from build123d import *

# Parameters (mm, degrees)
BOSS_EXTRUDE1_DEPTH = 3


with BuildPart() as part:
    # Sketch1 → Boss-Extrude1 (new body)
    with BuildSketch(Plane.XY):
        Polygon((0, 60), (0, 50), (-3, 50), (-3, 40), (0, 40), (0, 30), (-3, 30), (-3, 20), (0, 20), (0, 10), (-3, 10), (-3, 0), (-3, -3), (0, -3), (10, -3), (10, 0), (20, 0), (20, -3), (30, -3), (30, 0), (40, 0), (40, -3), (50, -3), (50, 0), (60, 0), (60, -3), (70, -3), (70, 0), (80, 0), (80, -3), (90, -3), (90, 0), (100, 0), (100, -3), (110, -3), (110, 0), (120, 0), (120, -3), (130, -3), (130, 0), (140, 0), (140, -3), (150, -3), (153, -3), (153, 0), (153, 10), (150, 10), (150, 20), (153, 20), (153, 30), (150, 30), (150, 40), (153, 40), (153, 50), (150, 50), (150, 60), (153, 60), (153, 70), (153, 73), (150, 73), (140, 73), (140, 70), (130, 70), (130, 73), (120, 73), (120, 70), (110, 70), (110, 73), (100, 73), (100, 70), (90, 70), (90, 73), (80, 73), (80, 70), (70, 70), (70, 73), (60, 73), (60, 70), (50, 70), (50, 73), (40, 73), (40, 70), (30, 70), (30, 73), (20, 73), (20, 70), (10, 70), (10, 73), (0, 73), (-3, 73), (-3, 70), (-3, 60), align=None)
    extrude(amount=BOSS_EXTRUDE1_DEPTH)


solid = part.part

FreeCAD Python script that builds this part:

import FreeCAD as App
import Part
import Sketcher

V = App.Vector
Q = App.Units.Quantity

doc = App.newDocument("Part")
body = doc.addObject("PartDesign::Body", "Body")

sketch1 = doc.addObject("Sketcher::SketchObject", "Sketch")
body.addObject(sketch1)
sketch1.AttachmentSupport = (doc.XY_Plane, [""])
sketch1.MapMode = "FlatFace"
sketch1.addGeometry(Part.LineSegment(V(0, 60, 0), V(0, 50, 0)), False)
sketch1.addGeometry(Part.LineSegment(V(0, 50, 0), V(-3, 50, 0)), False)
sketch1.addGeometry(Part.LineSegment(V(-3, 50, 0), V(-3, 40, 0)), False)
sketch1.addGeometry(Part.LineSegment(V(-3, 40, 0), V(0, 40, 0)), False)
sketch1.addGeometry(Part.LineSegment(V(0, 40, 0), V(0, 30, 0)), False)
sketch1.addGeometry(Part.LineSegment(V(0, 30, 0), V(-3, 30, 0)), False)
sketch1.addGeometry(Part.LineSegment(V(-3, 30, 0), V(-3, 20, 0)), False)
sketch1.addGeometry(Part.LineSegment(V(-3, 20, 0), V(0, 20, 0)), False)
sketch1.addGeometry(Part.LineSegment(V(0, 20, 0), V(0, 10, 0)), False)
sketch1.addGeometry(Part.LineSegment(V(0, 10, 0), V(-3, 10, 0)), False)
sketch1.addGeometry(Part.LineSegment(V(-3, 10, 0), V(-3, -3, 0)), False)
sketch1.addGeometry(Part.LineSegment(V(-3, -3, 0), V(10, -3, 0)), False)
sketch1.addGeometry(Part.LineSegment(V(10, -3, 0), V(10, 0, 0)), False)
sketch1.addGeometry(Part.LineSegment(V(10, 0, 0), V(20, 0, 0)), False)
sketch1.addGeometry(Part.LineSegment(V(20, 0, 0), V(20, -3, 0)), False)
sketch1.addGeometry(Part.LineSegment(V(20, -3, 0), V(30, -3, 0)), False)
sketch1.addGeometry(Part.LineSegment(V(30, -3, 0), V(30, 0, 0)), False)
sketch1.addGeometry(Part.LineSegment(V(30, 0, 0), V(40, 0, 0)), False)
sketch1.addGeometry(Part.LineSegment(V(40, 0, 0), V(40, -3, 0)), False)
sketch1.addGeometry(Part.LineSegment(V(40, -3, 0), V(50, -3, 0)), False)
sketch1.addGeometry(Part.LineSegment(V(50, -3, 0), V(50, 0, 0)), False)
sketch1.addGeometry(Part.LineSegment(V(50, 0, 0), V(60, 0, 0)), False)
sketch1.addGeometry(Part.LineSegment(V(60, 0, 0), V(60, -3, 0)), False)
sketch1.addGeometry(Part.LineSegment(V(60, -3, 0), V(70, -3, 0)), False)
sketch1.addGeometry(Part.LineSegment(V(70, -3, 0), V(70, 0, 0)), False)
sketch1.addGeometry(Part.LineSegment(V(70, 0, 0), V(80, 0, 0)), False)
sketch1.addGeometry(Part.LineSegment(V(80, 0, 0), V(80, -3, 0)), False)
sketch1.addGeometry(Part.LineSegment(V(80, -3, 0), V(90, -3, 0)), False)
sketch1.addGeometry(Part.LineSegment(V(90, -3, 0), V(90, 0, 0)), False)
sketch1.addGeometry(Part.LineSegment(V(90, 0, 0), V(100, 0, 0)), False)
sketch1.addGeometry(Part.LineSegment(V(100, 0, 0), V(100, -3, 0)), False)
sketch1.addGeometry(Part.LineSegment(V(100, -3, 0), V(110, -3, 0)), False)
sketch1.addGeometry(Part.LineSegment(V(110, -3, 0), V(110, 0, 0)), False)
sketch1.addGeometry(Part.LineSegment(V(110, 0, 0), V(120, 0, 0)), False)
sketch1.addGeometry(Part.LineSegment(V(120, 0, 0), V(120, -3, 0)), False)
sketch1.addGeometry(Part.LineSegment(V(120, -3, 0), V(130, -3, 0)), False)
sketch1.addGeometry(Part.LineSegment(V(130, -3, 0), V(130, 0, 0)), False)
sketch1.addGeometry(Part.LineSegment(V(130, 0, 0), V(140, 0, 0)), False)
sketch1.addGeometry(Part.LineSegment(V(140, 0, 0), V(140, -3, 0)), False)
sketch1.addGeometry(Part.LineSegment(V(140, -3, 0), V(153, -3, 0)), False)
sketch1.addGeometry(Part.LineSegment(V(153, -3, 0), V(153, 10, 0)), False)
sketch1.addGeometry(Part.LineSegment(V(153, 10, 0), V(150, 10, 0)), False)
sketch1.addGeometry(Part.LineSegment(V(150, 10, 0), V(150, 20, 0)), False)
sketch1.addGeometry(Part.LineSegment(V(150, 20, 0), V(153, 20, 0)), False)
sketch1.addGeometry(Part.LineSegment(V(153, 20, 0), V(153, 30, 0)), False)
sketch1.addGeometry(Part.LineSegment(V(153, 30, 0), V(150, 30, 0)), False)
sketch1.addGeometry(Part.LineSegment(V(150, 30, 0), V(150, 40, 0)), False)
sketch1.addGeometry(Part.LineSegment(V(150, 40, 0), V(153, 40, 0)), False)
sketch1.addGeometry(Part.LineSegment(V(153, 40, 0), V(153, 50, 0)), False)
sketch1.addGeometry(Part.LineSegment(V(153, 50, 0), V(150, 50, 0)), False)
sketch1.addGeometry(Part.LineSegment(V(150, 50, 0), V(150, 60, 0)), False)
sketch1.addGeometry(Part.LineSegment(V(150, 60, 0), V(153, 60, 0)), False)
sketch1.addGeometry(Part.LineSegment(V(153, 60, 0), V(153, 73, 0)), False)
sketch1.addGeometry(Part.LineSegment(V(153, 73, 0), V(140, 73, 0)), False)
sketch1.addGeometry(Part.LineSegment(V(140, 73, 0), V(140, 70, 0)), False)
sketch1.addGeometry(Part.LineSegment(V(140, 70, 0), V(130, 70, 0)), False)
sketch1.addGeometry(Part.LineSegment(V(130, 70, 0), V(130, 73, 0)), False)
sketch1.addGeometry(Part.LineSegment(V(130, 73, 0), V(120, 73, 0)), False)
sketch1.addGeometry(Part.LineSegment(V(120, 73, 0), V(120, 70, 0)), False)
sketch1.addGeometry(Part.LineSegment(V(120, 70, 0), V(110, 70, 0)), False)
sketch1.addGeometry(Part.LineSegment(V(110, 70, 0), V(110, 73, 0)), False)
sketch1.addGeometry(Part.LineSegment(V(110, 73, 0), V(100, 73, 0)), False)
sketch1.addGeometry(Part.LineSegment(V(100, 73, 0), V(100, 70, 0)), False)
sketch1.addGeometry(Part.LineSegment(V(100, 70, 0), V(90, 70, 0)), False)
sketch1.addGeometry(Part.LineSegment(V(90, 70, 0), V(90, 73, 0)), False)
sketch1.addGeometry(Part.LineSegment(V(90, 73, 0), V(80, 73, 0)), False)
sketch1.addGeometry(Part.LineSegment(V(80, 73, 0), V(80, 70, 0)), False)
sketch1.addGeometry(Part.LineSegment(V(80, 70, 0), V(70, 70, 0)), False)
sketch1.addGeometry(Part.LineSegment(V(70, 70, 0), V(70, 73, 0)), False)
sketch1.addGeometry(Part.LineSegment(V(70, 73, 0), V(60, 73, 0)), False)
sketch1.addGeometry(Part.LineSegment(V(60, 73, 0), V(60, 70, 0)), False)
sketch1.addGeometry(Part.LineSegment(V(60, 70, 0), V(50, 70, 0)), False)
sketch1.addGeometry(Part.LineSegment(V(50, 70, 0), V(50, 73, 0)), False)
sketch1.addGeometry(Part.LineSegment(V(50, 73, 0), V(40, 73, 0)), False)
sketch1.addGeometry(Part.LineSegment(V(40, 73, 0), V(40, 70, 0)), False)
sketch1.addGeometry(Part.LineSegment(V(40, 70, 0), V(30, 70, 0)), False)
sketch1.addGeometry(Part.LineSegment(V(30, 70, 0), V(30, 73, 0)), False)
sketch1.addGeometry(Part.LineSegment(V(30, 73, 0), V(20, 73, 0)), False)
sketch1.addGeometry(Part.LineSegment(V(20, 73, 0), V(20, 70, 0)), False)
sketch1.addGeometry(Part.LineSegment(V(20, 70, 0), V(10, 70, 0)), False)
sketch1.addGeometry(Part.LineSegment(V(10, 70, 0), V(10, 73, 0)), False)
sketch1.addGeometry(Part.LineSegment(V(10, 73, 0), V(-3, 73, 0)), False)
sketch1.addGeometry(Part.LineSegment(V(-3, 73, 0), V(-3, 60, 0)), False)
sketch1.addGeometry(Part.LineSegment(V(-3, 60, 0), V(0, 60, 0)), False)
sketch1.addConstraint(Sketcher.Constraint("Coincident", 0, 2, 1, 1))
sketch1.addConstraint(Sketcher.Constraint("Coincident", 1, 2, 2, 1))
sketch1.addConstraint(Sketcher.Constraint("Coincident", 2, 2, 3, 1))
sketch1.addConstraint(Sketcher.Constraint("Coincident", 3, 2, 4, 1))
sketch1.addConstraint(Sketcher.Constraint("Coincident", 4, 2, 5, 1))
sketch1.addConstraint(Sketcher.Constraint("Coincident", 5, 2, 6, 1))
sketch1.addConstraint(Sketcher.Constraint("Coincident", 6, 2, 7, 1))
sketch1.addConstraint(Sketcher.Constraint("Coincident", 7, 2, 8, 1))
sketch1.addConstraint(Sketcher.Constraint("Coincident", 8, 2, 9, 1))
sketch1.addConstraint(Sketcher.Constraint("Coincident", 9, 2, 10, 1))
sketch1.addConstraint(Sketcher.Constraint("Coincident", 10, 2, 11, 1))
sketch1.addConstraint(Sketcher.Constraint("Coincident", 11, 2, 12, 1))
sketch1.addConstraint(Sketcher.Constraint("Coincident", 12, 2, 13, 1))
sketch1.addConstraint(Sketcher.Constraint("Coincident", 13, 2, 14, 1))
sketch1.addConstraint(Sketcher.Constraint("Coincident", 14, 2, 15, 1))
sketch1.addConstraint(Sketcher.Constraint("Coincident", 15, 2, 16, 1))
sketch1.addConstraint(Sketcher.Constraint("Coincident", 16, 2, 17, 1))
sketch1.addConstraint(Sketcher.Constraint("Coincident", 17, 2, 18, 1))
sketch1.addConstraint(Sketcher.Constraint("Coincident", 18, 2, 19, 1))
sketch1.addConstraint(Sketcher.Constraint("Coincident", 19, 2, 20, 1))
sketch1.addConstraint(Sketcher.Constraint("Coincident", 20, 2, 21, 1))
sketch1.addConstraint(Sketcher.Constraint("Coincident", 21, 2, 22, 1))
sketch1.addConstraint(Sketcher.Constraint("Coincident", 22, 2, 23, 1))
sketch1.addConstraint(Sketcher.Constraint("Coincident", 23, 2, 24, 1))
sketch1.addConstraint(Sketcher.Constraint("Coincident", 24, 2, 25, 1))
sketch1.addConstraint(Sketcher.Constraint("Coincident", 25, 2, 26, 1))
sketch1.addConstraint(Sketcher.Constraint("Coincident", 26, 2, 27, 1))
sketch1.addConstraint(Sketcher.Constraint("Coincident", 27, 2, 28, 1))
sketch1.addConstraint(Sketcher.Constraint("Coincident", 28, 2, 29, 1))
sketch1.addConstraint(Sketcher.Constraint("Coincident", 29, 2, 30, 1))
sketch1.addConstraint(Sketcher.Constraint("Coincident", 30, 2, 31, 1))
sketch1.addConstraint(Sketcher.Constraint("Coincident", 31, 2, 32, 1))
sketch1.addConstraint(Sketcher.Constraint("Coincident", 32, 2, 33, 1))
sketch1.addConstraint(Sketcher.Constraint("Coincident", 33, 2, 34, 1))
sketch1.addConstraint(Sketcher.Constraint("Coincident", 34, 2, 35, 1))
sketch1.addConstraint(Sketcher.Constraint("Coincident", 35, 2, 36, 1))
sketch1.addConstraint(Sketcher.Constraint("Coincident", 36, 2, 37, 1))
sketch1.addConstraint(Sketcher.Constraint("Coincident", 37, 2, 38, 1))
sketch1.addConstraint(Sketcher.Constraint("Coincident", 38, 2, 39, 1))
sketch1.addConstraint(Sketcher.Constraint("Coincident", 39, 2, 40, 1))
sketch1.addConstraint(Sketcher.Constraint("Coincident", 40, 2, 41, 1))
sketch1.addConstraint(Sketcher.Constraint("Coincident", 41, 2, 42, 1))
sketch1.addConstraint(Sketcher.Constraint("Coincident", 42, 2, 43, 1))
sketch1.addConstraint(Sketcher.Constraint("Coincident", 43, 2, 44, 1))
sketch1.addConstraint(Sketcher.Constraint("Coincident", 44, 2, 45, 1))
sketch1.addConstraint(Sketcher.Constraint("Coincident", 45, 2, 46, 1))
sketch1.addConstraint(Sketcher.Constraint("Coincident", 46, 2, 47, 1))
sketch1.addConstraint(Sketcher.Constraint("Coincident", 47, 2, 48, 1))
sketch1.addConstraint(Sketcher.Constraint("Coincident", 48, 2, 49, 1))
sketch1.addConstraint(Sketcher.Constraint("Coincident", 49, 2, 50, 1))
sketch1.addConstraint(Sketcher.Constraint("Coincident", 50, 2, 51, 1))
sketch1.addConstraint(Sketcher.Constraint("Coincident", 51, 2, 52, 1))
sketch1.addConstraint(Sketcher.Constraint("Coincident", 52, 2, 53, 1))
sketch1.addConstraint(Sketcher.Constraint("Coincident", 53, 2, 54, 1))
sketch1.addConstraint(Sketcher.Constraint("Coincident", 54, 2, 55, 1))
sketch1.addConstraint(Sketcher.Constraint("Coincident", 55, 2, 56, 1))
sketch1.addConstraint(Sketcher.Constraint("Coincident", 56, 2, 57, 1))
sketch1.addConstraint(Sketcher.Constraint("Coincident", 57, 2, 58, 1))
sketch1.addConstraint(Sketcher.Constraint("Coincident", 58, 2, 59, 1))
sketch1.addConstraint(Sketcher.Constraint("Coincident", 59, 2, 60, 1))
sketch1.addConstraint(Sketcher.Constraint("Coincident", 60, 2, 61, 1))
sketch1.addConstraint(Sketcher.Constraint("Coincident", 61, 2, 62, 1))
sketch1.addConstraint(Sketcher.Constraint("Coincident", 62, 2, 63, 1))
sketch1.addConstraint(Sketcher.Constraint("Coincident", 63, 2, 64, 1))
sketch1.addConstraint(Sketcher.Constraint("Coincident", 64, 2, 65, 1))
sketch1.addConstraint(Sketcher.Constraint("Coincident", 65, 2, 66, 1))
sketch1.addConstraint(Sketcher.Constraint("Coincident", 66, 2, 67, 1))
sketch1.addConstraint(Sketcher.Constraint("Coincident", 67, 2, 68, 1))
sketch1.addConstraint(Sketcher.Constraint("Coincident", 68, 2, 69, 1))
sketch1.addConstraint(Sketcher.Constraint("Coincident", 69, 2, 70, 1))
sketch1.addConstraint(Sketcher.Constraint("Coincident", 70, 2, 71, 1))
sketch1.addConstraint(Sketcher.Constraint("Coincident", 71, 2, 72, 1))
sketch1.addConstraint(Sketcher.Constraint("Coincident", 72, 2, 73, 1))
sketch1.addConstraint(Sketcher.Constraint("Coincident", 73, 2, 74, 1))
sketch1.addConstraint(Sketcher.Constraint("Coincident", 74, 2, 75, 1))
sketch1.addConstraint(Sketcher.Constraint("Coincident", 75, 2, 76, 1))
sketch1.addConstraint(Sketcher.Constraint("Coincident", 76, 2, 77, 1))
sketch1.addConstraint(Sketcher.Constraint("Coincident", 77, 2, 78, 1))
sketch1.addConstraint(Sketcher.Constraint("Coincident", 78, 2, 79, 1))
sketch1.addConstraint(Sketcher.Constraint("Coincident", 79, 2, 80, 1))
sketch1.addConstraint(Sketcher.Constraint("Coincident", 80, 2, 81, 1))
sketch1.addConstraint(Sketcher.Constraint("Coincident", 81, 2, 82, 1))
sketch1.addConstraint(Sketcher.Constraint("Coincident", 82, 2, 83, 1))
sketch1.addConstraint(Sketcher.Constraint("Coincident", 83, 2, 0, 1))
sketch1.addConstraint(Sketcher.Constraint("Vertical", 0))
sketch1.addConstraint(Sketcher.Constraint("Horizontal", 1))
sketch1.addConstraint(Sketcher.Constraint("Vertical", 2))
sketch1.addConstraint(Sketcher.Constraint("Horizontal", 3))
sketch1.addConstraint(Sketcher.Constraint("Vertical", 4))
sketch1.addConstraint(Sketcher.Constraint("Horizontal", 5))
sketch1.addConstraint(Sketcher.Constraint("Vertical", 6))
sketch1.addConstraint(Sketcher.Constraint("Horizontal", 7))
sketch1.addConstraint(Sketcher.Constraint("Vertical", 8))
sketch1.addConstraint(Sketcher.Constraint("Horizontal", 9))
sketch1.addConstraint(Sketcher.Constraint("Vertical", 10))
sketch1.addConstraint(Sketcher.Constraint("Horizontal", 11))
sketch1.addConstraint(Sketcher.Constraint("Vertical", 12))
sketch1.addConstraint(Sketcher.Constraint("Horizontal", 13))
sketch1.addConstraint(Sketcher.Constraint("Vertical", 14))
sketch1.addConstraint(Sketcher.Constraint("Horizontal", 15))
sketch1.addConstraint(Sketcher.Constraint("Vertical", 16))
sketch1.addConstraint(Sketcher.Constraint("Horizontal", 17))
sketch1.addConstraint(Sketcher.Constraint("Vertical", 18))
sketch1.addConstraint(Sketcher.Constraint("Horizontal", 19))
sketch1.addConstraint(Sketcher.Constraint("Vertical", 20))
sketch1.addConstraint(Sketcher.Constraint("Horizontal", 21))
sketch1.addConstraint(Sketcher.Constraint("Vertical", 22))
sketch1.addConstraint(Sketcher.Constraint("Horizontal", 23))
sketch1.addConstraint(Sketcher.Constraint("Vertical", 24))
sketch1.addConstraint(Sketcher.Constraint("Horizontal", 25))
sketch1.addConstraint(Sketcher.Constraint("Vertical", 26))
sketch1.addConstraint(Sketcher.Constraint("Horizontal", 27))
sketch1.addConstraint(Sketcher.Constraint("Vertical", 28))
sketch1.addConstraint(Sketcher.Constraint("Horizontal", 29))
sketch1.addConstraint(Sketcher.Constraint("Vertical", 30))
sketch1.addConstraint(Sketcher.Constraint("Horizontal", 31))
sketch1.addConstraint(Sketcher.Constraint("Vertical", 32))
sketch1.addConstraint(Sketcher.Constraint("Horizontal", 33))
sketch1.addConstraint(Sketcher.Constraint("Vertical", 34))
sketch1.addConstraint(Sketcher.Constraint("Horizontal", 35))
sketch1.addConstraint(Sketcher.Constraint("Vertical", 36))
sketch1.addConstraint(Sketcher.Constraint("Horizontal", 37))
sketch1.addConstraint(Sketcher.Constraint("Vertical", 38))
sketch1.addConstraint(Sketcher.Constraint("Horizontal", 39))
sketch1.addConstraint(Sketcher.Constraint("Vertical", 40))
sketch1.addConstraint(Sketcher.Constraint("Horizontal", 41))
sketch1.addConstraint(Sketcher.Constraint("Vertical", 42))
sketch1.addConstraint(Sketcher.Constraint("Horizontal", 43))
sketch1.addConstraint(Sketcher.Constraint("Vertical", 44))
sketch1.addConstraint(Sketcher.Constraint("Horizontal", 45))
sketch1.addConstraint(Sketcher.Constraint("Vertical", 46))
sketch1.addConstraint(Sketcher.Constraint("Horizontal", 47))
sketch1.addConstraint(Sketcher.Constraint("Vertical", 48))
sketch1.addConstraint(Sketcher.Constraint("Horizontal", 49))
sketch1.addConstraint(Sketcher.Constraint("Vertical", 50))
sketch1.addConstraint(Sketcher.Constraint("Horizontal", 51))
sketch1.addConstraint(Sketcher.Constraint("Vertical", 52))
sketch1.addConstraint(Sketcher.Constraint("Horizontal", 53))
sketch1.addConstraint(Sketcher.Constraint("Vertical", 54))
sketch1.addConstraint(Sketcher.Constraint("Horizontal", 55))
sketch1.addConstraint(Sketcher.Constraint("Vertical", 56))
sketch1.addConstraint(Sketcher.Constraint("Horizontal", 57))
sketch1.addConstraint(Sketcher.Constraint("Vertical", 58))
sketch1.addConstraint(Sketcher.Constraint("Horizontal", 59))
sketch1.addConstraint(Sketcher.Constraint("Vertical", 60))
sketch1.addConstraint(Sketcher.Constraint("Horizontal", 61))
sketch1.addConstraint(Sketcher.Constraint("Vertical", 62))
sketch1.addConstraint(Sketcher.Constraint("Horizontal", 63))
sketch1.addConstraint(Sketcher.Constraint("Vertical", 64))
sketch1.addConstraint(Sketcher.Constraint("Horizontal", 65))
sketch1.addConstraint(Sketcher.Constraint("Vertical", 66))
sketch1.addConstraint(Sketcher.Constraint("Horizontal", 67))
sketch1.addConstraint(Sketcher.Constraint("Vertical", 68))
sketch1.addConstraint(Sketcher.Constraint("Horizontal", 69))
sketch1.addConstraint(Sketcher.Constraint("Vertical", 70))
sketch1.addConstraint(Sketcher.Constraint("Horizontal", 71))
sketch1.addConstraint(Sketcher.Constraint("Vertical", 72))
sketch1.addConstraint(Sketcher.Constraint("Horizontal", 73))
sketch1.addConstraint(Sketcher.Constraint("Vertical", 74))
sketch1.addConstraint(Sketcher.Constraint("Horizontal", 75))
sketch1.addConstraint(Sketcher.Constraint("Vertical", 76))
sketch1.addConstraint(Sketcher.Constraint("Horizontal", 77))
sketch1.addConstraint(Sketcher.Constraint("Vertical", 78))
sketch1.addConstraint(Sketcher.Constraint("Horizontal", 79))
sketch1.addConstraint(Sketcher.Constraint("Vertical", 80))
sketch1.addConstraint(Sketcher.Constraint("Horizontal", 81))
sketch1.addConstraint(Sketcher.Constraint("Vertical", 82))
sketch1.addConstraint(Sketcher.Constraint("Horizontal", 83))
sketch1.addConstraint(Sketcher.Constraint("PointOnObject", 0, 2, -2))
sketch1.addConstraint(Sketcher.Constraint("PointOnObject", 3, 2, -2))
sketch1.addConstraint(Sketcher.Constraint("PointOnObject", 7, 2, -2))
sketch1.addConstraint(Sketcher.Constraint("PointOnObject", 12, 2, -1))
sketch1.addConstraint(Sketcher.Constraint("PointOnObject", 16, 2, -1))
sketch1.addConstraint(Sketcher.Constraint("PointOnObject", 20, 2, -1))
sketch1.addConstraint(Sketcher.Constraint("PointOnObject", 24, 2, -1))
sketch1.addConstraint(Sketcher.Constraint("PointOnObject", 28, 2, -1))
sketch1.addConstraint(Sketcher.Constraint("PointOnObject", 32, 2, -1))
sketch1.addConstraint(Sketcher.Constraint("PointOnObject", 36, 2, -1))
sketch1.addConstraint(Sketcher.Constraint("Horizontal", 11, 2, 14, 2))
sketch1.addConstraint(Sketcher.Constraint("Horizontal", 15, 2, 18, 2))
sketch1.addConstraint(Sketcher.Constraint("Horizontal", 19, 2, 22, 2))
sketch1.addConstraint(Sketcher.Constraint("Horizontal", 23, 2, 26, 2))
sketch1.addConstraint(Sketcher.Constraint("Horizontal", 27, 2, 30, 2))
sketch1.addConstraint(Sketcher.Constraint("Horizontal", 31, 2, 34, 2))
sketch1.addConstraint(Sketcher.Constraint("Horizontal", 35, 2, 38, 2))
sketch1.addConstraint(Sketcher.Constraint("Horizontal", 9, 2, 40, 2))
sketch1.addConstraint(Sketcher.Constraint("Horizontal", 7, 2, 42, 2))
sketch1.addConstraint(Sketcher.Constraint("Horizontal", 5, 2, 44, 2))
sketch1.addConstraint(Sketcher.Constraint("Horizontal", 3, 2, 46, 2))
sketch1.addConstraint(Sketcher.Constraint("Horizontal", 1, 2, 48, 2))
sketch1.addConstraint(Sketcher.Constraint("Horizontal", 53, 2, 56, 2))
sketch1.addConstraint(Sketcher.Constraint("Horizontal", 55, 2, 58, 2))
sketch1.addConstraint(Sketcher.Constraint("Horizontal", 57, 2, 60, 2))
sketch1.addConstraint(Sketcher.Constraint("Horizontal", 59, 2, 62, 2))
sketch1.addConstraint(Sketcher.Constraint("Horizontal", 61, 2, 64, 2))
sketch1.addConstraint(Sketcher.Constraint("Horizontal", 63, 2, 66, 2))
sketch1.addConstraint(Sketcher.Constraint("Horizontal", 65, 2, 68, 2))
sketch1.addConstraint(Sketcher.Constraint("Horizontal", 67, 2, 70, 2))
sketch1.addConstraint(Sketcher.Constraint("Horizontal", 69, 2, 72, 2))
sketch1.addConstraint(Sketcher.Constraint("Horizontal", 71, 2, 74, 2))
sketch1.addConstraint(Sketcher.Constraint("Horizontal", 73, 2, 76, 2))
sketch1.addConstraint(Sketcher.Constraint("Horizontal", 75, 2, 78, 2))
sketch1.addConstraint(Sketcher.Constraint("Horizontal", 77, 2, 80, 2))
sketch1.addConstraint(Sketcher.Constraint("Horizontal", 51, 2, 82, 2))
sketch1.addConstraint(Sketcher.Constraint("Vertical", 2, 2, 5, 2))
sketch1.addConstraint(Sketcher.Constraint("Vertical", 6, 2, 9, 2))
sketch1.addConstraint(Sketcher.Constraint("Vertical", 40, 2, 43, 2))
sketch1.addConstraint(Sketcher.Constraint("Vertical", 42, 2, 45, 2))
sketch1.addConstraint(Sketcher.Constraint("Vertical", 44, 2, 47, 2))
sketch1.addConstraint(Sketcher.Constraint("Vertical", 46, 2, 49, 2))
sketch1.addConstraint(Sketcher.Constraint("Vertical", 48, 2, 51, 2))
sketch1.addConstraint(Sketcher.Constraint("Vertical", 38, 2, 53, 2))
sketch1.addConstraint(Sketcher.Constraint("Vertical", 36, 2, 55, 2))
sketch1.addConstraint(Sketcher.Constraint("Vertical", 34, 2, 57, 2))
sketch1.addConstraint(Sketcher.Constraint("Vertical", 32, 2, 59, 2))
sketch1.addConstraint(Sketcher.Constraint("Vertical", 30, 2, 61, 2))
sketch1.addConstraint(Sketcher.Constraint("Vertical", 28, 2, 63, 2))
sketch1.addConstraint(Sketcher.Constraint("Vertical", 26, 2, 65, 2))
sketch1.addConstraint(Sketcher.Constraint("Vertical", 24, 2, 67, 2))
sketch1.addConstraint(Sketcher.Constraint("Vertical", 22, 2, 69, 2))
sketch1.addConstraint(Sketcher.Constraint("Vertical", 20, 2, 71, 2))
sketch1.addConstraint(Sketcher.Constraint("Vertical", 18, 2, 73, 2))
sketch1.addConstraint(Sketcher.Constraint("Vertical", 16, 2, 75, 2))
sketch1.addConstraint(Sketcher.Constraint("Vertical", 14, 2, 77, 2))
sketch1.addConstraint(Sketcher.Constraint("Vertical", 12, 2, 79, 2))
sketch1.addConstraint(Sketcher.Constraint("Vertical", 10, 2, 81, 2))
sketch1.addConstraint(Sketcher.Constraint("Equal", 13, 15))
sketch1.addConstraint(Sketcher.Constraint("Equal", 15, 17))
sketch1.addConstraint(Sketcher.Constraint("Equal", 17, 19))
sketch1.addConstraint(Sketcher.Constraint("Equal", 19, 21))
sketch1.addConstraint(Sketcher.Constraint("Equal", 21, 23))
sketch1.addConstraint(Sketcher.Constraint("Equal", 23, 25))
sketch1.addConstraint(Sketcher.Constraint("Equal", 25, 27))
sketch1.addConstraint(Sketcher.Constraint("Equal", 27, 29))
sketch1.addConstraint(Sketcher.Constraint("Equal", 29, 31))
sketch1.addConstraint(Sketcher.Constraint("Equal", 31, 33))
sketch1.addConstraint(Sketcher.Constraint("Equal", 33, 35))
sketch1.addConstraint(Sketcher.Constraint("Equal", 35, 37))
sketch1.addConstraint(Sketcher.Constraint("Equal", 11, 39))
sketch1.addConstraint(Sketcher.Constraint("Equal", 9, 41))
sketch1.addConstraint(Sketcher.Constraint("Equal", 79, 0))
sketch1.addConstraint(Sketcher.Constraint("Equal", 0, 2))
sketch1.addConstraint(Sketcher.Constraint("Equal", 2, 4))
sketch1.addConstraint(Sketcher.Constraint("Equal", 4, 6))
sketch1.addConstraint(Sketcher.Constraint("Equal", 6, 8))
sketch1.addConstraint(Sketcher.Constraint("Equal", 81, 10))
sketch1.addConstraint(Sketcher.Constraint("Equal", 83, 12))
sketch1.addConstraint(Sketcher.Constraint("Equal", 40, 52))
sketch1.addConstraint(Sketcher.Constraint("Equal", 38, 54))
sketch1.addConstraint(Sketcher.Constraint("DistanceX", 1, 2, 1, 1, Q("3 mm")))
sketch1.addConstraint(Sketcher.Constraint("DistanceX", 11, 1, 11, 2, Q("13 mm")))
sketch1.addConstraint(Sketcher.Constraint("DistanceX", 13, 1, 13, 2, Q("10 mm")))
pad1 = doc.addObject("PartDesign::Pad", "Pad")
body.addObject(pad1)
pad1.Profile = sketch1
pad1.Length = 3

doc.recompute()
